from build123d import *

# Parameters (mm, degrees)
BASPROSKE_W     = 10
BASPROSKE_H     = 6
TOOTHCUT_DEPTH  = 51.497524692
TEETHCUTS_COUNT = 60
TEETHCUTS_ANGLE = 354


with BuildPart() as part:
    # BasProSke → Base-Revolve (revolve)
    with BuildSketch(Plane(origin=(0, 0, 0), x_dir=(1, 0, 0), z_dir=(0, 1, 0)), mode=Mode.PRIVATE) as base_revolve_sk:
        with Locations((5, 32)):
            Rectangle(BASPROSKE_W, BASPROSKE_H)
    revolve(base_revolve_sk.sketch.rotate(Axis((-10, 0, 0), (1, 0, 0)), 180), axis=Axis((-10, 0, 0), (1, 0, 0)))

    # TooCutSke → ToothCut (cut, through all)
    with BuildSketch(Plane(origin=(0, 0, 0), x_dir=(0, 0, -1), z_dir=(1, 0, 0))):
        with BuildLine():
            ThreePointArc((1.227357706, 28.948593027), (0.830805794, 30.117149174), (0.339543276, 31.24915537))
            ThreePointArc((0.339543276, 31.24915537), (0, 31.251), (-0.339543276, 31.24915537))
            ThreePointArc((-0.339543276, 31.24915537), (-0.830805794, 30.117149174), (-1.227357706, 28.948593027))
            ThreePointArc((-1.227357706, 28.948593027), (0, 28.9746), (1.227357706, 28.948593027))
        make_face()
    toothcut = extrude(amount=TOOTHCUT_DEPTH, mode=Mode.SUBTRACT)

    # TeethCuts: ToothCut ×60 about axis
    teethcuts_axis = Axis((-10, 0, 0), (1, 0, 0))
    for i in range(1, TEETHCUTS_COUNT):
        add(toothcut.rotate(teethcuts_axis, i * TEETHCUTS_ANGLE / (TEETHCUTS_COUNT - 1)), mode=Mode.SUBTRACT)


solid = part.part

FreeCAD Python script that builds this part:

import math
import FreeCAD as App
import Part
import Sketcher
Q = App.Units.Quantity


def add_polygon(sketch, points):
    """Adds a closed chain of lines whose ends are joined by coincident constraints."""
    first, n = sketch.GeometryCount, len(points)
    for a, b in zip(points, points[1:] + points[:1]):
        sketch.addGeometry(Part.LineSegment(App.Vector(*a, 0), App.Vector(*b, 0)), False)
    for i in range(n):
        sketch.addConstraint(Sketcher.Constraint("Coincident", first + i, 2, first + (i + 1) % n, 1))

doc = App.newDocument("Part")
body = doc.addObject("PartDesign::Body", "Body")

# Sketch on XZ plane
sketch1 = body.newObject("Sketcher::SketchObject", "Sketch")
sketch1.AttachmentSupport = (doc.getObject("XZ_Plane"), [""])
sketch1.MapMode = "FlatFace"
add_polygon(sketch1, [(0, -35), (0, -29), (10, -29), (10, -35)])  # lines 0-3
sketch1.addConstraint(Sketcher.Constraint("Vertical", 0))
sketch1.addConstraint(Sketcher.Constraint("Horizontal", 1))
sketch1.addConstraint(Sketcher.Constraint("Vertical", 2))
sketch1.addConstraint(Sketcher.Constraint("Horizontal", 3))
sketch1.addConstraint(Sketcher.Constraint("PointOnObject", 0, 2, -2))
sketch1.addConstraint(Sketcher.Constraint("DistanceX", 1, 1, 1, 2, Q("10 mm")))
sketch1.addConstraint(Sketcher.Constraint("DistanceY", 0, 1, 0, 2, Q("6 mm")))
sketch1.addConstraint(Sketcher.Constraint("DistanceY", 0, 2, -1, 1, Q("29 mm")))
revolution = body.newObject("PartDesign::Revolution", "Revolution")
revolution.Profile = sketch1
revolution.ReferenceAxis = (sketch1, ["H_Axis"])
revolution.Angle = 360

# Sketch on YZ plane
sketch2 = body.newObject("Sketcher::SketchObject", "Sketch001")
sketch2.AttachmentSupport = (doc.getObject("YZ_Plane"), [""])
sketch2.MapMode = "FlatFace"
sketch2.addGeometry(Part.ArcOfCircle(Part.Circle(App.Vector(24.7, 13.2, 0), App.Vector(0, 0, 1), 15), math.radians(-73.61), math.radians(-64.18)), False)
sketch2.addGeometry(Part.ArcOfCircle(Part.Circle(App.Vector(0, 0, 0), App.Vector(0, 0, 1), 31.3), math.radians(-0.62), math.radians(0.62)), False)
sketch2.addGeometry(Part.ArcOfCircle(Part.Circle(App.Vector(24.7, -13.2, 0), App.Vector(0, 0, 1), 15), math.radians(64.18), math.radians(73.61)), False)
sketch2.addGeometry(Part.ArcOfCircle(Part.Circle(App.Vector(0, 0, 0), App.Vector(0, 0, 1), 29), math.radians(-2.43), math.radians(2.43)), False)
sketch2.addConstraint(Sketcher.Constraint("Coincident", 0, 2, 1, 1))
sketch2.addConstraint(Sketcher.Constraint("Coincident", 1, 2, 2, 1))
sketch2.addConstraint(Sketcher.Constraint("Coincident", 2, 2, 3, 2))
sketch2.addConstraint(Sketcher.Constraint("Coincident", 3, 1, 0, 1))
sketch2.addConstraint(Sketcher.Constraint("Coincident", 1, 3, -1, 1))
sketch2.addConstraint(Sketcher.Constraint("Coincident", 3, 3, -1, 1))
sketch2.addConstraint(Sketcher.Constraint("Equal", 0, 2))
sketch2.addConstraint(Sketcher.Constraint("Symmetric", 0, 3, 2, 3, -1))
sketch2.addConstraint(Sketcher.Constraint("Radius", 0, Q("15 mm")))
sketch2.addConstraint(Sketcher.Constraint("Radius", 3, Q("28.9746 mm")))
sketch2.addConstraint(Sketcher.Constraint("Radius", 1, Q("31.250993 mm")))
sketch2.addConstraint(Sketcher.Constraint("DistanceY", 0, 2, 2, 2, Q("1.566901 mm")))
sketch2.addConstraint(Sketcher.Constraint("DistanceX", -1, 1, 0, 3, Q("24.716661 mm")))
pocket1 = body.newObject("PartDesign::Pocket", "Pocket")
pocket1.Profile = sketch2
pocket1.Type = "ThroughAll"
pocket1.Reversed = True
doc.recompute()

polarpattern = body.newObject("PartDesign::PolarPattern", "PolarPattern")
polarpattern.Originals = [pocket1]
polarpattern.Axis = (doc.getObject("X_Axis"), [""])
polarpattern.Angle = 360
polarpattern.Occurrences = 60
body.Tip = polarpattern

doc.recompute()
